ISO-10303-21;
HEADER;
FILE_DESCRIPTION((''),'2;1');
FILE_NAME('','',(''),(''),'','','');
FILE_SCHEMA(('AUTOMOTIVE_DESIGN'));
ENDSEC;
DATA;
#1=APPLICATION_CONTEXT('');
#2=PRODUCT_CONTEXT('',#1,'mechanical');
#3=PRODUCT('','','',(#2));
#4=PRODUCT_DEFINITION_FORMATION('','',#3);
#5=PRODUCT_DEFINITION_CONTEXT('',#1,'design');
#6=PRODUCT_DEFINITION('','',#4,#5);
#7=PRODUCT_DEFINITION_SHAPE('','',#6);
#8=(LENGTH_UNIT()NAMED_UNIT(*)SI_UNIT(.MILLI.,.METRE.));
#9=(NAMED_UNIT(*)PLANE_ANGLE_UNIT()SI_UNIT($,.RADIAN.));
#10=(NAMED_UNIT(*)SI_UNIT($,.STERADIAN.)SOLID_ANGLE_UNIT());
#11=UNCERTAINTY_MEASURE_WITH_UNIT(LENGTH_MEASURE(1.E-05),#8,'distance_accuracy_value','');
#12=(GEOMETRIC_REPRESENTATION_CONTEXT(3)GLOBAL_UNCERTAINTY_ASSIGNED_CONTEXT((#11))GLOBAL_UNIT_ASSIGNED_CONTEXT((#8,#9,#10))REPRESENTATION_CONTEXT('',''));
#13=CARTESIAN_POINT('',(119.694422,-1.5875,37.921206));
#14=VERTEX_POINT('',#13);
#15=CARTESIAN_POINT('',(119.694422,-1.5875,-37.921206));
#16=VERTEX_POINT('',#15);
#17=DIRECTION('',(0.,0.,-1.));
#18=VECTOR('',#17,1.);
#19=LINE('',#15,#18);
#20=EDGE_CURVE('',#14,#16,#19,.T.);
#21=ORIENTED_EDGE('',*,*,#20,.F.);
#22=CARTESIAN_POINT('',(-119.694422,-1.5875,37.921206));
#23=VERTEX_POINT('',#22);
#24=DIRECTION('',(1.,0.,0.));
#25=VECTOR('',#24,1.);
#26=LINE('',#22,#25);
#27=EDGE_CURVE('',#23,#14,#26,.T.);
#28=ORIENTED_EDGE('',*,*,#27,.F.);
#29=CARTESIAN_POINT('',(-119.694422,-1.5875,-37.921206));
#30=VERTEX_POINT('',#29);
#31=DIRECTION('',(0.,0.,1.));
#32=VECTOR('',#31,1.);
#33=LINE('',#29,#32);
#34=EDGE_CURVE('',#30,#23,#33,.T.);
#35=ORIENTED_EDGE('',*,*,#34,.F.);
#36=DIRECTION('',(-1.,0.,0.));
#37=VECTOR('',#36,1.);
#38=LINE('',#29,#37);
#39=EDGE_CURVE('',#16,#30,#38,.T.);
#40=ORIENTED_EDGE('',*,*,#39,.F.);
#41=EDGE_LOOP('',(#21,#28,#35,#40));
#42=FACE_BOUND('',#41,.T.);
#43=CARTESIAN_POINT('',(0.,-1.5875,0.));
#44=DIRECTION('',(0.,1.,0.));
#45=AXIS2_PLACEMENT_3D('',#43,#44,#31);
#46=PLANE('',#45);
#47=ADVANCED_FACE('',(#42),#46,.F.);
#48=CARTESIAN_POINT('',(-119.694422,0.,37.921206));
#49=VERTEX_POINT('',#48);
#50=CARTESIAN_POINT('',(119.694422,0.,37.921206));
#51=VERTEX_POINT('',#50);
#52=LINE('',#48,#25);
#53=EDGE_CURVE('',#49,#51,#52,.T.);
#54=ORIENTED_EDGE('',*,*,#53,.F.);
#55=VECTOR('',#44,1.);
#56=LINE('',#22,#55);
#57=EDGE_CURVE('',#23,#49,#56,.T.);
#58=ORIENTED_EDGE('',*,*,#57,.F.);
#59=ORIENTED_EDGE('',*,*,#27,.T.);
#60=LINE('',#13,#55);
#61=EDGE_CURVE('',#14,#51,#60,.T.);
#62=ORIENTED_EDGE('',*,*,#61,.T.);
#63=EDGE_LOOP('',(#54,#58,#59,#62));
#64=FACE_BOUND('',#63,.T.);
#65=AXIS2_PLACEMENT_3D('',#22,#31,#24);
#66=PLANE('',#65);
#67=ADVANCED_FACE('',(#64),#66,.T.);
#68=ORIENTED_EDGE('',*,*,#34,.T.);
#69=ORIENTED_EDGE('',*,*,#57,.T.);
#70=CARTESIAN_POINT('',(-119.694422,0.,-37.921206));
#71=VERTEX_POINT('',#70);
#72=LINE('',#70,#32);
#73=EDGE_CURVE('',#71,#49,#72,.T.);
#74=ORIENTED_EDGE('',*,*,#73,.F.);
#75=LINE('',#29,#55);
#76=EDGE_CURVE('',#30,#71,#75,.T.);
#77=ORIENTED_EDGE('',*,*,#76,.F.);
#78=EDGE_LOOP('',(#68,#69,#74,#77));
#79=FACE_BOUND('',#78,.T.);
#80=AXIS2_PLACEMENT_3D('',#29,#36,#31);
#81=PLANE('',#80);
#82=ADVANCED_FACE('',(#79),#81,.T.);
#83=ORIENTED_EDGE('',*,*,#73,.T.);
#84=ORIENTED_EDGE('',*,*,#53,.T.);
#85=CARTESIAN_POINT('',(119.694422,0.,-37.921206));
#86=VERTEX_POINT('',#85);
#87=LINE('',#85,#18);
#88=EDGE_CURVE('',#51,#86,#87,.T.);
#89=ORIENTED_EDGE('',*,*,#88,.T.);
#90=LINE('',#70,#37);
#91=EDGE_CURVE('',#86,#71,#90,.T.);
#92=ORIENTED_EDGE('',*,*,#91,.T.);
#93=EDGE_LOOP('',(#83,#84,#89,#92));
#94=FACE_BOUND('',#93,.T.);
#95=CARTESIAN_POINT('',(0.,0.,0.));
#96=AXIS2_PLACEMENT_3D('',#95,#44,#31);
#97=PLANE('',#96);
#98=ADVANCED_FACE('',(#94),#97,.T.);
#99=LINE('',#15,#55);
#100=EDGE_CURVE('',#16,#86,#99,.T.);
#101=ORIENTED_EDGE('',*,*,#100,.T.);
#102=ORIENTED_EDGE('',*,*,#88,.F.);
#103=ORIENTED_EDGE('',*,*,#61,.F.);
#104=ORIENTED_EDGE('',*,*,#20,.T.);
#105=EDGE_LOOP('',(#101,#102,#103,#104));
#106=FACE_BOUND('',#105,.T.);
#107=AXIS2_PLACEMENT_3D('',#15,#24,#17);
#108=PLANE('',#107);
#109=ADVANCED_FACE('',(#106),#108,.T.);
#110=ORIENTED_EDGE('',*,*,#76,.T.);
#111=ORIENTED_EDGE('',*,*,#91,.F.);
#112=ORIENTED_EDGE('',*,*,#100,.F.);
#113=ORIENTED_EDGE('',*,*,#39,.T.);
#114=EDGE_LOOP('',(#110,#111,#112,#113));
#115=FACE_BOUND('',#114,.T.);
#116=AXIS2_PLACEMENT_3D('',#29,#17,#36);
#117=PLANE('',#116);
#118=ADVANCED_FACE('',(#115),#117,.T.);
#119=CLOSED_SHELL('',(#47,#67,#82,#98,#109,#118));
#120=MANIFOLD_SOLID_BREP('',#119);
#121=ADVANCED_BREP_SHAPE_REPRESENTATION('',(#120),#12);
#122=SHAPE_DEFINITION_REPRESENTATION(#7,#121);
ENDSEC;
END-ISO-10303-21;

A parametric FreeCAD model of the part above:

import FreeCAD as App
import Part
import Sketcher
Q = App.Units.Quantity


def add_polygon(sketch, points):
    """Adds a closed chain of lines whose ends are joined by coincident constraints."""
    first, n = sketch.GeometryCount, len(points)
    for a, b in zip(points, points[1:] + points[:1]):
        sketch.addGeometry(Part.LineSegment(App.Vector(*a, 0), App.Vector(*b, 0)), False)
    for i in range(n):
        sketch.addConstraint(Sketcher.Constraint("Coincident", first + i, 2, first + (i + 1) % n, 1))

doc = App.newDocument("Part")
body = doc.addObject("PartDesign::Body", "Body")

# Sketch on XZ plane
sketch1 = doc.addObject("Sketcher::SketchObject", "Sketch")
body.addObject(sketch1)
sketch1.AttachmentSupport = (doc.XZ_Plane, [""])
sketch1.MapMode = "FlatFace"
add_polygon(sketch1, [(-120, -38), (-120, 38), (120, 38), (120, -38)])  # lines 0-3
sketch1.addConstraint([
    Sketcher.Constraint("Vertical", 0),
    Sketcher.Constraint("Horizontal", 1),
    Sketcher.Constraint("Vertical", 2),
    Sketcher.Constraint("Horizontal", 3),
    Sketcher.Constraint("Symmetric", 0, 2, 2, 2, -1, 1),
    Sketcher.Constraint("DistanceY", 0, 1, 0, 2, 75.842411),
    Sketcher.Constraint("DistanceX", 1, 1, 1, 2, 239.388844),
])
pad1 = doc.addObject("PartDesign::Pad", "Pad")
body.addObject(pad1)
pad1.Profile = sketch1
pad1.Length = Q("0.0625 in")

doc.recompute()
